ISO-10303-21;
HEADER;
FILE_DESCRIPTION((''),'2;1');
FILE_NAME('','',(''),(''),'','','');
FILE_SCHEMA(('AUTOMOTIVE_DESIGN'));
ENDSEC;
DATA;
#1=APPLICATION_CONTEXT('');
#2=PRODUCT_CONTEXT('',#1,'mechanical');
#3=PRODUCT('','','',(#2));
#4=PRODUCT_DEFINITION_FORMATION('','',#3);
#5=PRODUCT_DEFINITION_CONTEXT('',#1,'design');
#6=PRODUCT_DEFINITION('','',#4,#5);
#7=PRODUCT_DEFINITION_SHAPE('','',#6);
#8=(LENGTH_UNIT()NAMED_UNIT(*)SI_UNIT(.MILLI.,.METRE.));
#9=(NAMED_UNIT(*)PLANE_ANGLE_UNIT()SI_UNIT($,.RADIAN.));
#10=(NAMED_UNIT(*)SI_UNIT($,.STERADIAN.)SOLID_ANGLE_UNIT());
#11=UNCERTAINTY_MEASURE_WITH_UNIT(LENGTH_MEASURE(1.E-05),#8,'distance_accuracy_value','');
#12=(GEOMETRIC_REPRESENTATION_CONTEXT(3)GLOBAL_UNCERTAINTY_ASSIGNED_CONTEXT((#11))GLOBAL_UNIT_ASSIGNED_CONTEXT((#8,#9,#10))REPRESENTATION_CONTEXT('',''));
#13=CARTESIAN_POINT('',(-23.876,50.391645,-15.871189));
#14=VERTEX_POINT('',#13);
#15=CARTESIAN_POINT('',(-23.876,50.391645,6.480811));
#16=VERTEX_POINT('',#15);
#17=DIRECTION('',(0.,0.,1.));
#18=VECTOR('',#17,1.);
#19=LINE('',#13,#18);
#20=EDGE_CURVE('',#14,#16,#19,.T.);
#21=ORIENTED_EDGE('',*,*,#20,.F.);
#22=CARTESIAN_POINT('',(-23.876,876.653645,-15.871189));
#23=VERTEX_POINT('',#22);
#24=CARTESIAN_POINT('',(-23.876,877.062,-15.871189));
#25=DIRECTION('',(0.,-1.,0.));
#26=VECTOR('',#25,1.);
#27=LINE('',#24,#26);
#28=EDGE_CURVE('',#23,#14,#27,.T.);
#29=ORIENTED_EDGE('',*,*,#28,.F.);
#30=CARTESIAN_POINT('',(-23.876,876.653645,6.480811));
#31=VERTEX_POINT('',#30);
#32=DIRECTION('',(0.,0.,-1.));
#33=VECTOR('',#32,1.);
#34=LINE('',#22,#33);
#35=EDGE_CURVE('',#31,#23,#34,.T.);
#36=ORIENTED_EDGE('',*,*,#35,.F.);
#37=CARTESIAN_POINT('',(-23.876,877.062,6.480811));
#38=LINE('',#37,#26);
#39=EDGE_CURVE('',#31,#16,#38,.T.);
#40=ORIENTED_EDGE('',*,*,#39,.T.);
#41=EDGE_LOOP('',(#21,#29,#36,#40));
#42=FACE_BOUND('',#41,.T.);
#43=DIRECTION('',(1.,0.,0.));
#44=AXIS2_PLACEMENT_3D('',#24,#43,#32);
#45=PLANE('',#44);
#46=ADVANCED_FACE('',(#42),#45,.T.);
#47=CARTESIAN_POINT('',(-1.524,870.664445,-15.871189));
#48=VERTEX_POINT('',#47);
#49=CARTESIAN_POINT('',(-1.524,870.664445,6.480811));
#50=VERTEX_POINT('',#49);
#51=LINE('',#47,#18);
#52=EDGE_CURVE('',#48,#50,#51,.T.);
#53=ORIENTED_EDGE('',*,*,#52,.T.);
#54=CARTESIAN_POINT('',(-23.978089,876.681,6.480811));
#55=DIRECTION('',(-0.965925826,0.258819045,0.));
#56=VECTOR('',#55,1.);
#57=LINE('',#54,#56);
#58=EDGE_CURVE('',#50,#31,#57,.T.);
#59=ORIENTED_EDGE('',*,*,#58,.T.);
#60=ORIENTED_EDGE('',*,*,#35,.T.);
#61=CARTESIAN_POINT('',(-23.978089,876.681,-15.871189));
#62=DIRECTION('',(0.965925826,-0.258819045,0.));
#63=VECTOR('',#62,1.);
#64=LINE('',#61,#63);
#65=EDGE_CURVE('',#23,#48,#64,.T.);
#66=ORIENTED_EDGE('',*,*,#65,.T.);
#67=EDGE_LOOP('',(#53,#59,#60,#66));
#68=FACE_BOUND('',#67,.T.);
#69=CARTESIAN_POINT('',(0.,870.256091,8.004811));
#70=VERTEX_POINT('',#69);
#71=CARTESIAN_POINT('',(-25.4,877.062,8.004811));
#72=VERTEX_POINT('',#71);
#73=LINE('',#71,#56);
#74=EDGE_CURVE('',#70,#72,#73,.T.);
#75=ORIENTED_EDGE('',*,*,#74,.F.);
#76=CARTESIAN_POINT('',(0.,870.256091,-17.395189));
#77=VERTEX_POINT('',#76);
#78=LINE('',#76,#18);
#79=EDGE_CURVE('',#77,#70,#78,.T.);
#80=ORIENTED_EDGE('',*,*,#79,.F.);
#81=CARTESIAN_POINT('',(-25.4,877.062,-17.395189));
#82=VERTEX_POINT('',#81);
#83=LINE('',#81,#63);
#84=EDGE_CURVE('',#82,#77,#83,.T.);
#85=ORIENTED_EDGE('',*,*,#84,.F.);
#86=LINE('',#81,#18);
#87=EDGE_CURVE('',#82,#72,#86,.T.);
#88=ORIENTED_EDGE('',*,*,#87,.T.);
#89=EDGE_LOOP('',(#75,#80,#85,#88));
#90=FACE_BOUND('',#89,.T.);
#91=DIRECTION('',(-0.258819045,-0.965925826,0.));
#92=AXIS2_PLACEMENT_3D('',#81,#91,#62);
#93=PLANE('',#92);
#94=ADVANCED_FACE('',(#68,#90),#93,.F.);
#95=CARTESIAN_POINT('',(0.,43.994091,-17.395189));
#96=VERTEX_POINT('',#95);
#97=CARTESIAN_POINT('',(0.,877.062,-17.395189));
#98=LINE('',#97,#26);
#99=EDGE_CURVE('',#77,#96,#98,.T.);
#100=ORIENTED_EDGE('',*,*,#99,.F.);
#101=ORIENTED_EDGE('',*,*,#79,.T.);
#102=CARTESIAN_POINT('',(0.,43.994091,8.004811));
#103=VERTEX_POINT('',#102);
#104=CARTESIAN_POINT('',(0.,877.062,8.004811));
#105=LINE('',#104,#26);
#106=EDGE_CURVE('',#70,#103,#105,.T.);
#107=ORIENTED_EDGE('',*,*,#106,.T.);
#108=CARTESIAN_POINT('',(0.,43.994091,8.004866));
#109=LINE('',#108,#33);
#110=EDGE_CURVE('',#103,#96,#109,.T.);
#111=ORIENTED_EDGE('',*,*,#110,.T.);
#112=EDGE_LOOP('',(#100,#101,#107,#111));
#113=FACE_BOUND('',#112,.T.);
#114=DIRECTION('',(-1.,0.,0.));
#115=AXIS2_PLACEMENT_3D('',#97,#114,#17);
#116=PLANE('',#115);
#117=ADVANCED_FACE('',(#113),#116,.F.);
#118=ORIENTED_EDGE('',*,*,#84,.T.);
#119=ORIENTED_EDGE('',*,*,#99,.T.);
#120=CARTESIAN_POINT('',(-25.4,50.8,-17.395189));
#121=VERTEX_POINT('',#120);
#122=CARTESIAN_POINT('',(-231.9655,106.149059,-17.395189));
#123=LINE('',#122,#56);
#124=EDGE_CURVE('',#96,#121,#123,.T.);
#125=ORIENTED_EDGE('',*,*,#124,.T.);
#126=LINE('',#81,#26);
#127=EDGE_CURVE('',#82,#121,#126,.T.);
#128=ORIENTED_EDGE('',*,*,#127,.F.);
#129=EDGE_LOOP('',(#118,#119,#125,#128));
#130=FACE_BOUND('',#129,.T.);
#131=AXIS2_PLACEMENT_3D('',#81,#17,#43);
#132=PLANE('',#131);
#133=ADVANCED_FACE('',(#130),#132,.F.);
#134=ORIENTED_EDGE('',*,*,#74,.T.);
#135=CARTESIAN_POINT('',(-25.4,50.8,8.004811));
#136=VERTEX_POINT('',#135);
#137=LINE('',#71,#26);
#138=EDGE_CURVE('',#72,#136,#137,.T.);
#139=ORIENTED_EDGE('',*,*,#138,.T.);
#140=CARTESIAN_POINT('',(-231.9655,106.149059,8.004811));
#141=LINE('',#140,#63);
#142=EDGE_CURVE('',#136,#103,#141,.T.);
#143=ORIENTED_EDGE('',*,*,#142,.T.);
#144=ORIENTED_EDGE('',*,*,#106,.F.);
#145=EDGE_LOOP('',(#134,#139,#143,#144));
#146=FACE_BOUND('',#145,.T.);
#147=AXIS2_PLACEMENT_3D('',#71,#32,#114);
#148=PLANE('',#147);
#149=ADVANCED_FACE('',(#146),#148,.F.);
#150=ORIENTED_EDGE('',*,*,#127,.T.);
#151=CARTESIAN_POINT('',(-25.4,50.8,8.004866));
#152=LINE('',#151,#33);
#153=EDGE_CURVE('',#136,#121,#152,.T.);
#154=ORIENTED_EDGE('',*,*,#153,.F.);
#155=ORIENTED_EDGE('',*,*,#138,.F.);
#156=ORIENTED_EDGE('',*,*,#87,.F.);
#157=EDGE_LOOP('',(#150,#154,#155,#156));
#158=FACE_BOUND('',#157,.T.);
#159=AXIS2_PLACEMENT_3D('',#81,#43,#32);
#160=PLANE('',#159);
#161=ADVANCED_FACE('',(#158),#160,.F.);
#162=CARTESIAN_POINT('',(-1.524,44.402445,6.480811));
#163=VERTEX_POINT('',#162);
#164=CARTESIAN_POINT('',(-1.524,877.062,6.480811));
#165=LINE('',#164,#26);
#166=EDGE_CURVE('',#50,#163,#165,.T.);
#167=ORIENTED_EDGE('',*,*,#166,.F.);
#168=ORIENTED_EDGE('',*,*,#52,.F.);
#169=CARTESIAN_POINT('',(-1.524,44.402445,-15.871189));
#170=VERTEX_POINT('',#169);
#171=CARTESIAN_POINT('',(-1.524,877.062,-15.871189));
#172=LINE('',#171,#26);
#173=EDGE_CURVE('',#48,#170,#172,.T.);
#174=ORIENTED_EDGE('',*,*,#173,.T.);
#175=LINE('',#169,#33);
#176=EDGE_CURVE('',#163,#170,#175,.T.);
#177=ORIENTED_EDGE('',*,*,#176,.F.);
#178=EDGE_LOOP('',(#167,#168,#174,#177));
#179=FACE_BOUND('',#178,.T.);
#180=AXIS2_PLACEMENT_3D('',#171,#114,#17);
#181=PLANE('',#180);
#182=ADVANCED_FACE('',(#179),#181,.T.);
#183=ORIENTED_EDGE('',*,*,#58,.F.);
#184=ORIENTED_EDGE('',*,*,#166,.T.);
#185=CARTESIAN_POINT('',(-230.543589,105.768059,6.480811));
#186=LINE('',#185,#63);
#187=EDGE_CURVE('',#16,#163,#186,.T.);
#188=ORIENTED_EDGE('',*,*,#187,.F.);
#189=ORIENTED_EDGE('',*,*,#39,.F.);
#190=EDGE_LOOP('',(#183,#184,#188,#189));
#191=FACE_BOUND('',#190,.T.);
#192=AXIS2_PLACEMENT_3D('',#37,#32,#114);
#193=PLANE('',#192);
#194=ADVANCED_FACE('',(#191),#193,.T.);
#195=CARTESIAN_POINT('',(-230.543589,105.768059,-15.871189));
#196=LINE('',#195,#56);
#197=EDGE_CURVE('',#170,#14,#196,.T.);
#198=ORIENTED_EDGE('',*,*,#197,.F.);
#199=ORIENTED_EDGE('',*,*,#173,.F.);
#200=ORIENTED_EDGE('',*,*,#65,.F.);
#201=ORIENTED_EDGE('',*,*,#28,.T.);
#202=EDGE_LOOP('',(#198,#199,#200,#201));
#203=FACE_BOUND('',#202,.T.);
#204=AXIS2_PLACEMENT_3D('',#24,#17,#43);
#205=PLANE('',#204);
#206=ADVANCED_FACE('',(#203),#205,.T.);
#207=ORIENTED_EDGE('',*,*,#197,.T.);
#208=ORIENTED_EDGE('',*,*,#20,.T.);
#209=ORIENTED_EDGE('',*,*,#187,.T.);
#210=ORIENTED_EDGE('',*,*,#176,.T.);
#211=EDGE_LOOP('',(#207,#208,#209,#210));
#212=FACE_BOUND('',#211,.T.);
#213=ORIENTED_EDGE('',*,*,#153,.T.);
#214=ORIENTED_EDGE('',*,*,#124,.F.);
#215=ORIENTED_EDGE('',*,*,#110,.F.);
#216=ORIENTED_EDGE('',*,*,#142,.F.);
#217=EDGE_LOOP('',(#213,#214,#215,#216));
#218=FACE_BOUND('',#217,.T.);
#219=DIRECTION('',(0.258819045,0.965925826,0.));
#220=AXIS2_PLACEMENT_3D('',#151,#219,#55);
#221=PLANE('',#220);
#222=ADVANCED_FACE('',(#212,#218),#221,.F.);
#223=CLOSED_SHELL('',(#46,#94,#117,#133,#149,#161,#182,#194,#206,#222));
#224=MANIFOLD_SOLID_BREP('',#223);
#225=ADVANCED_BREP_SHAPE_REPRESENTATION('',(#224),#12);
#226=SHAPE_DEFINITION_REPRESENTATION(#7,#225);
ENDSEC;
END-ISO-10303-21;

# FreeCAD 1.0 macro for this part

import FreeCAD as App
import Part
import Sketcher

V = App.Vector
Q = App.Units.Quantity


def add_polygon(sketch, points):
    """Adds a closed chain of lines whose ends are joined by coincident constraints."""
    first, n = sketch.GeometryCount, len(points)
    for a, b in zip(points, points[1:] + points[:1]):
        sketch.addGeometry(Part.LineSegment(App.Vector(*a, 0), App.Vector(*b, 0)), False)
    for i in range(n):
        sketch.addConstraint(Sketcher.Constraint("Coincident", first + i, 2, first + (i + 1) % n, 1))

doc = App.newDocument("Part")
body = doc.addObject("PartDesign::Body", "Body")

# Sketch on XZ plane
sketch1 = doc.addObject("Sketcher::SketchObject", "Sketch")
body.addObject(sketch1)
sketch1.AttachmentSupport = (doc.XZ_Plane, [""])
sketch1.MapMode = "FlatFace"
add_polygon(sketch1, [(-25, -17), (-25, 8), (0, 8), (0, -17)])  # lines 0-3
add_polygon(sketch1, [(-2, 6), (-24, 6), (-24, -16), (-2, -16)])  # lines 4-7
sketch1.addConstraint([
    Sketcher.Constraint("Vertical", 0),
    Sketcher.Constraint("Horizontal", 1),
    Sketcher.Constraint("Vertical", 2),
    Sketcher.Constraint("Horizontal", 3),
    Sketcher.Constraint("Horizontal", 4),
    Sketcher.Constraint("Vertical", 5),
    Sketcher.Constraint("Horizontal", 6),
    Sketcher.Constraint("Vertical", 7),
    Sketcher.Constraint("PointOnObject", 1, 2, -2),
    Sketcher.Constraint("Equal", 3, 0),
    Sketcher.Constraint("Equal", 6, 5),
    Sketcher.Constraint("DistanceX", 1, 1, 1, 2, Q("1 in")),
    Sketcher.Constraint("DistanceX", 4, 2, 4, 1, Q("0.88 in")),
    Sketcher.Constraint("DistanceX", 4, 2, -1, 1, Q("0.94 in")),
    Sketcher.Constraint("DistanceY", 4, 2, 0, 2, Q("0.06 in")),
    Sketcher.Constraint("DistanceY", -1, 1, 0, 2, Q("8.004811 mm")),
])
pad1 = doc.addObject("PartDesign::Pad", "Pad")
body.addObject(pad1)
pad1.Profile = sketch1
pad1.Length = Q("34.53 in")
pad1.Reversed = True

# Sketch on XY plane
sketch2 = doc.addObject("Sketcher::SketchObject", "Sketch001")
body.addObject(sketch2)
sketch2.AttachmentSupport = (doc.XY_Plane, [""])
sketch2.MapMode = "FlatFace"
sketch2.AttachmentOffset = App.Placement(V(0, 0, 8.004811), App.Rotation())
add_polygon(sketch2, [(-25, 877), (0, 870), (0, 877)])  # lines 0-2
sketch2.addConstraint([
    Sketcher.Constraint("Vertical", 1),
    Sketcher.Constraint("Horizontal", 2),
    Sketcher.Constraint("PointOnObject", 0, 2, -2),
    Sketcher.Constraint("DistanceX", 2, 2, 2, 1, Q("1 in")),
    Sketcher.Constraint("Angle", 0, Q("-15 deg")),
    Sketcher.Constraint("DistanceY", -1, 1, 1, 2, Q("34.53 in")),
])
pocket1 = doc.addObject("PartDesign::Pocket", "Pocket")
body.addObject(pocket1)
pocket1.Profile = sketch2
pocket1.Type = "ThroughAll"
pocket1.Midplane = True

# Sketch on XY plane
sketch3 = doc.addObject("Sketcher::SketchObject", "Sketch002")
body.addObject(sketch3)
sketch3.AttachmentSupport = (doc.XY_Plane, [""])
sketch3.MapMode = "FlatFace"
sketch3.AttachmentOffset = App.Placement(V(0, 0, -17.395189), App.Rotation())
add_polygon(sketch3, [(-25, 0), (-25, 51), (0, 44), (0, 0)])  # lines 0-3
sketch3.addConstraint([
    Sketcher.Constraint("Vertical", 0),
    Sketcher.Constraint("Vertical", 2),
    Sketcher.Constraint("Horizontal", 3),
    Sketcher.Constraint("Coincident", 2, 2, -1, 1),
    Sketcher.Constraint("DistanceX", 3, 2, 3, 1, Q("1 in")),
    Sketcher.Constraint("DistanceY", 0, 1, 0, 2, Q("2 in")),
    Sketcher.Constraint("Angle", 1, Q("-15 deg")),
])
pocket2 = doc.addObject("PartDesign::Pocket", "Pocket001")
body.addObject(pocket2)
pocket2.Profile = sketch3
pocket2.Type = "ThroughAll"
pocket2.Midplane = True

doc.recompute()
